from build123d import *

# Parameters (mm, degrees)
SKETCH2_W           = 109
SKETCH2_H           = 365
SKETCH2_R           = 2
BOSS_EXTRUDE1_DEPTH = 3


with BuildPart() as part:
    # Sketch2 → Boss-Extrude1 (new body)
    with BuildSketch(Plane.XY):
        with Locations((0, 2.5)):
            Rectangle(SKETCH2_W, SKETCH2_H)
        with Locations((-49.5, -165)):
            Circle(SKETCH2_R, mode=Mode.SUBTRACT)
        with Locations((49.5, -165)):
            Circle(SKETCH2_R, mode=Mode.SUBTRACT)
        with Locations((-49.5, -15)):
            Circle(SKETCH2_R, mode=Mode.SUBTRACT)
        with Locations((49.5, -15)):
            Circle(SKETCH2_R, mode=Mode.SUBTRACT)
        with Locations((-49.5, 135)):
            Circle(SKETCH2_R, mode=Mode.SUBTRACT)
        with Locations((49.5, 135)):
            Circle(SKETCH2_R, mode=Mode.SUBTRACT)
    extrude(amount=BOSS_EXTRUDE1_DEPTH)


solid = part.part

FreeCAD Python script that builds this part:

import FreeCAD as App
import Part
import Sketcher
from FreeCAD import Vector
Q = App.Units.Quantity


def add_polygon(sketch, points):
    """Adds a closed chain of lines whose ends are joined by coincident constraints."""
    first, n = sketch.GeometryCount, len(points)
    for a, b in zip(points, points[1:] + points[:1]):
        sketch.addGeometry(Part.LineSegment(App.Vector(*a, 0), App.Vector(*b, 0)), False)
    for i in range(n):
        sketch.addConstraint(Sketcher.Constraint("Coincident", first + i, 2, first + (i + 1) % n, 1))

doc = App.newDocument("Part")
params = doc.addObject("Spreadsheet::Sheet", "Params")
for row, (alias, value) in enumerate([
    ("sketch1_diameter", "4 mm"),
    ("sketch1_width", "109 mm"),
    ("sketch1_height", "365 mm"),
    ("pad1_length", "3 mm"),
], start=1):
    params.set(f"A{row}", alias)
    params.set(f"B{row}", "=" + value)
    params.setAlias(f"B{row}", alias)

body = doc.addObject("PartDesign::Body", "Body")

sketch1 = doc.addObject("Sketcher::SketchObject", "Sketch")
body.addObject(sketch1)
sketch1.AttachmentSupport = (doc.XY_Plane, [""])
sketch1.MapMode = "FlatFace"
add_polygon(sketch1, [(-54.5, 185), (-54.5, -180), (54.5, -180), (54.5, 185)])
sketch1.addGeometry(Part.Circle(Vector(-49.5, -165, 0), Vector(0, 0, 1), 2), False)
sketch1.addGeometry(Part.Circle(Vector(49.5, -165, 0), Vector(0, 0, 1), 2), False)
sketch1.addGeometry(Part.Circle(Vector(-49.5, -15, 0), Vector(0, 0, 1), 2), False)
sketch1.addGeometry(Part.Circle(Vector(-49.5, 135, 0), Vector(0, 0, 1), 2), False)
sketch1.addGeometry(Part.Circle(Vector(49.5, -15, 0), Vector(0, 0, 1), 2), False)
sketch1.addGeometry(Part.Circle(Vector(49.5, 135, 0), Vector(0, 0, 1), 2), False)
sketch1.addConstraint(Sketcher.Constraint("Vertical", 0))
sketch1.addConstraint(Sketcher.Constraint("Horizontal", 1))
sketch1.addConstraint(Sketcher.Constraint("Vertical", 2))
sketch1.addConstraint(Sketcher.Constraint("Horizontal", 3))
sketch1.addConstraint(Sketcher.Constraint("Equal", 4, 5))
sketch1.addConstraint(Sketcher.Constraint("Equal", 5, 6))
sketch1.addConstraint(Sketcher.Constraint("Equal", 6, 7))
sketch1.addConstraint(Sketcher.Constraint("Equal", 7, 8))
sketch1.addConstraint(Sketcher.Constraint("Equal", 8, 9))
sketch1.addConstraint(Sketcher.Constraint("Symmetric", 4, 3, 5, 3, -2))
sketch1.addConstraint(Sketcher.Constraint("Symmetric", 6, 3, 8, 3, -2))
sketch1.addConstraint(Sketcher.Constraint("Symmetric", 7, 3, 9, 3, -2))
sketch1.addConstraint(Sketcher.Constraint("Vertical", 4, 3, 6, 3))
sketch1.addConstraint(Sketcher.Constraint("Vertical", 6, 3, 7, 3))
sketch1.addConstraint(Sketcher.Constraint("Diameter", 4, Q("4 mm")))
sketch1.addConstraint(Sketcher.Constraint("DistanceX", 1, 1, 1, 2, Q("109 mm")))
sketch1.addConstraint(Sketcher.Constraint("DistanceY", 0, 2, 0, 1, Q("365 mm")))
sketch1.addConstraint(Sketcher.Constraint("DistanceY", 4, 3, -1, 1, Q("165 mm")))
sketch1.addConstraint(Sketcher.Constraint("DistanceY", 6, 3, -1, 1, Q("15 mm")))
sketch1.addConstraint(Sketcher.Constraint("DistanceY", -1, 1, 7, 3, Q("135 mm")))
sketch1.addConstraint(Sketcher.Constraint("DistanceY", 0, 2, -1, 1, Q("180 mm")))
sketch1.addConstraint(Sketcher.Constraint("DistanceX", 4, 3, 5, 3, Q("99 mm")))
sketch1.addConstraint(Sketcher.Constraint("DistanceX", 0, 2, 4, 3, Q("5 mm")))
sketch1.setExpression("Constraints[18]", "Params.sketch1_diameter")
sketch1.setExpression("Constraints[19]", "Params.sketch1_width")
sketch1.setExpression("Constraints[20]", "Params.sketch1_height")
pad1 = doc.addObject("PartDesign::Pad", "Pad")
body.addObject(pad1)
pad1.Profile = sketch1
pad1.setExpression("Length", "Params.pad1_length")

doc.recompute()
